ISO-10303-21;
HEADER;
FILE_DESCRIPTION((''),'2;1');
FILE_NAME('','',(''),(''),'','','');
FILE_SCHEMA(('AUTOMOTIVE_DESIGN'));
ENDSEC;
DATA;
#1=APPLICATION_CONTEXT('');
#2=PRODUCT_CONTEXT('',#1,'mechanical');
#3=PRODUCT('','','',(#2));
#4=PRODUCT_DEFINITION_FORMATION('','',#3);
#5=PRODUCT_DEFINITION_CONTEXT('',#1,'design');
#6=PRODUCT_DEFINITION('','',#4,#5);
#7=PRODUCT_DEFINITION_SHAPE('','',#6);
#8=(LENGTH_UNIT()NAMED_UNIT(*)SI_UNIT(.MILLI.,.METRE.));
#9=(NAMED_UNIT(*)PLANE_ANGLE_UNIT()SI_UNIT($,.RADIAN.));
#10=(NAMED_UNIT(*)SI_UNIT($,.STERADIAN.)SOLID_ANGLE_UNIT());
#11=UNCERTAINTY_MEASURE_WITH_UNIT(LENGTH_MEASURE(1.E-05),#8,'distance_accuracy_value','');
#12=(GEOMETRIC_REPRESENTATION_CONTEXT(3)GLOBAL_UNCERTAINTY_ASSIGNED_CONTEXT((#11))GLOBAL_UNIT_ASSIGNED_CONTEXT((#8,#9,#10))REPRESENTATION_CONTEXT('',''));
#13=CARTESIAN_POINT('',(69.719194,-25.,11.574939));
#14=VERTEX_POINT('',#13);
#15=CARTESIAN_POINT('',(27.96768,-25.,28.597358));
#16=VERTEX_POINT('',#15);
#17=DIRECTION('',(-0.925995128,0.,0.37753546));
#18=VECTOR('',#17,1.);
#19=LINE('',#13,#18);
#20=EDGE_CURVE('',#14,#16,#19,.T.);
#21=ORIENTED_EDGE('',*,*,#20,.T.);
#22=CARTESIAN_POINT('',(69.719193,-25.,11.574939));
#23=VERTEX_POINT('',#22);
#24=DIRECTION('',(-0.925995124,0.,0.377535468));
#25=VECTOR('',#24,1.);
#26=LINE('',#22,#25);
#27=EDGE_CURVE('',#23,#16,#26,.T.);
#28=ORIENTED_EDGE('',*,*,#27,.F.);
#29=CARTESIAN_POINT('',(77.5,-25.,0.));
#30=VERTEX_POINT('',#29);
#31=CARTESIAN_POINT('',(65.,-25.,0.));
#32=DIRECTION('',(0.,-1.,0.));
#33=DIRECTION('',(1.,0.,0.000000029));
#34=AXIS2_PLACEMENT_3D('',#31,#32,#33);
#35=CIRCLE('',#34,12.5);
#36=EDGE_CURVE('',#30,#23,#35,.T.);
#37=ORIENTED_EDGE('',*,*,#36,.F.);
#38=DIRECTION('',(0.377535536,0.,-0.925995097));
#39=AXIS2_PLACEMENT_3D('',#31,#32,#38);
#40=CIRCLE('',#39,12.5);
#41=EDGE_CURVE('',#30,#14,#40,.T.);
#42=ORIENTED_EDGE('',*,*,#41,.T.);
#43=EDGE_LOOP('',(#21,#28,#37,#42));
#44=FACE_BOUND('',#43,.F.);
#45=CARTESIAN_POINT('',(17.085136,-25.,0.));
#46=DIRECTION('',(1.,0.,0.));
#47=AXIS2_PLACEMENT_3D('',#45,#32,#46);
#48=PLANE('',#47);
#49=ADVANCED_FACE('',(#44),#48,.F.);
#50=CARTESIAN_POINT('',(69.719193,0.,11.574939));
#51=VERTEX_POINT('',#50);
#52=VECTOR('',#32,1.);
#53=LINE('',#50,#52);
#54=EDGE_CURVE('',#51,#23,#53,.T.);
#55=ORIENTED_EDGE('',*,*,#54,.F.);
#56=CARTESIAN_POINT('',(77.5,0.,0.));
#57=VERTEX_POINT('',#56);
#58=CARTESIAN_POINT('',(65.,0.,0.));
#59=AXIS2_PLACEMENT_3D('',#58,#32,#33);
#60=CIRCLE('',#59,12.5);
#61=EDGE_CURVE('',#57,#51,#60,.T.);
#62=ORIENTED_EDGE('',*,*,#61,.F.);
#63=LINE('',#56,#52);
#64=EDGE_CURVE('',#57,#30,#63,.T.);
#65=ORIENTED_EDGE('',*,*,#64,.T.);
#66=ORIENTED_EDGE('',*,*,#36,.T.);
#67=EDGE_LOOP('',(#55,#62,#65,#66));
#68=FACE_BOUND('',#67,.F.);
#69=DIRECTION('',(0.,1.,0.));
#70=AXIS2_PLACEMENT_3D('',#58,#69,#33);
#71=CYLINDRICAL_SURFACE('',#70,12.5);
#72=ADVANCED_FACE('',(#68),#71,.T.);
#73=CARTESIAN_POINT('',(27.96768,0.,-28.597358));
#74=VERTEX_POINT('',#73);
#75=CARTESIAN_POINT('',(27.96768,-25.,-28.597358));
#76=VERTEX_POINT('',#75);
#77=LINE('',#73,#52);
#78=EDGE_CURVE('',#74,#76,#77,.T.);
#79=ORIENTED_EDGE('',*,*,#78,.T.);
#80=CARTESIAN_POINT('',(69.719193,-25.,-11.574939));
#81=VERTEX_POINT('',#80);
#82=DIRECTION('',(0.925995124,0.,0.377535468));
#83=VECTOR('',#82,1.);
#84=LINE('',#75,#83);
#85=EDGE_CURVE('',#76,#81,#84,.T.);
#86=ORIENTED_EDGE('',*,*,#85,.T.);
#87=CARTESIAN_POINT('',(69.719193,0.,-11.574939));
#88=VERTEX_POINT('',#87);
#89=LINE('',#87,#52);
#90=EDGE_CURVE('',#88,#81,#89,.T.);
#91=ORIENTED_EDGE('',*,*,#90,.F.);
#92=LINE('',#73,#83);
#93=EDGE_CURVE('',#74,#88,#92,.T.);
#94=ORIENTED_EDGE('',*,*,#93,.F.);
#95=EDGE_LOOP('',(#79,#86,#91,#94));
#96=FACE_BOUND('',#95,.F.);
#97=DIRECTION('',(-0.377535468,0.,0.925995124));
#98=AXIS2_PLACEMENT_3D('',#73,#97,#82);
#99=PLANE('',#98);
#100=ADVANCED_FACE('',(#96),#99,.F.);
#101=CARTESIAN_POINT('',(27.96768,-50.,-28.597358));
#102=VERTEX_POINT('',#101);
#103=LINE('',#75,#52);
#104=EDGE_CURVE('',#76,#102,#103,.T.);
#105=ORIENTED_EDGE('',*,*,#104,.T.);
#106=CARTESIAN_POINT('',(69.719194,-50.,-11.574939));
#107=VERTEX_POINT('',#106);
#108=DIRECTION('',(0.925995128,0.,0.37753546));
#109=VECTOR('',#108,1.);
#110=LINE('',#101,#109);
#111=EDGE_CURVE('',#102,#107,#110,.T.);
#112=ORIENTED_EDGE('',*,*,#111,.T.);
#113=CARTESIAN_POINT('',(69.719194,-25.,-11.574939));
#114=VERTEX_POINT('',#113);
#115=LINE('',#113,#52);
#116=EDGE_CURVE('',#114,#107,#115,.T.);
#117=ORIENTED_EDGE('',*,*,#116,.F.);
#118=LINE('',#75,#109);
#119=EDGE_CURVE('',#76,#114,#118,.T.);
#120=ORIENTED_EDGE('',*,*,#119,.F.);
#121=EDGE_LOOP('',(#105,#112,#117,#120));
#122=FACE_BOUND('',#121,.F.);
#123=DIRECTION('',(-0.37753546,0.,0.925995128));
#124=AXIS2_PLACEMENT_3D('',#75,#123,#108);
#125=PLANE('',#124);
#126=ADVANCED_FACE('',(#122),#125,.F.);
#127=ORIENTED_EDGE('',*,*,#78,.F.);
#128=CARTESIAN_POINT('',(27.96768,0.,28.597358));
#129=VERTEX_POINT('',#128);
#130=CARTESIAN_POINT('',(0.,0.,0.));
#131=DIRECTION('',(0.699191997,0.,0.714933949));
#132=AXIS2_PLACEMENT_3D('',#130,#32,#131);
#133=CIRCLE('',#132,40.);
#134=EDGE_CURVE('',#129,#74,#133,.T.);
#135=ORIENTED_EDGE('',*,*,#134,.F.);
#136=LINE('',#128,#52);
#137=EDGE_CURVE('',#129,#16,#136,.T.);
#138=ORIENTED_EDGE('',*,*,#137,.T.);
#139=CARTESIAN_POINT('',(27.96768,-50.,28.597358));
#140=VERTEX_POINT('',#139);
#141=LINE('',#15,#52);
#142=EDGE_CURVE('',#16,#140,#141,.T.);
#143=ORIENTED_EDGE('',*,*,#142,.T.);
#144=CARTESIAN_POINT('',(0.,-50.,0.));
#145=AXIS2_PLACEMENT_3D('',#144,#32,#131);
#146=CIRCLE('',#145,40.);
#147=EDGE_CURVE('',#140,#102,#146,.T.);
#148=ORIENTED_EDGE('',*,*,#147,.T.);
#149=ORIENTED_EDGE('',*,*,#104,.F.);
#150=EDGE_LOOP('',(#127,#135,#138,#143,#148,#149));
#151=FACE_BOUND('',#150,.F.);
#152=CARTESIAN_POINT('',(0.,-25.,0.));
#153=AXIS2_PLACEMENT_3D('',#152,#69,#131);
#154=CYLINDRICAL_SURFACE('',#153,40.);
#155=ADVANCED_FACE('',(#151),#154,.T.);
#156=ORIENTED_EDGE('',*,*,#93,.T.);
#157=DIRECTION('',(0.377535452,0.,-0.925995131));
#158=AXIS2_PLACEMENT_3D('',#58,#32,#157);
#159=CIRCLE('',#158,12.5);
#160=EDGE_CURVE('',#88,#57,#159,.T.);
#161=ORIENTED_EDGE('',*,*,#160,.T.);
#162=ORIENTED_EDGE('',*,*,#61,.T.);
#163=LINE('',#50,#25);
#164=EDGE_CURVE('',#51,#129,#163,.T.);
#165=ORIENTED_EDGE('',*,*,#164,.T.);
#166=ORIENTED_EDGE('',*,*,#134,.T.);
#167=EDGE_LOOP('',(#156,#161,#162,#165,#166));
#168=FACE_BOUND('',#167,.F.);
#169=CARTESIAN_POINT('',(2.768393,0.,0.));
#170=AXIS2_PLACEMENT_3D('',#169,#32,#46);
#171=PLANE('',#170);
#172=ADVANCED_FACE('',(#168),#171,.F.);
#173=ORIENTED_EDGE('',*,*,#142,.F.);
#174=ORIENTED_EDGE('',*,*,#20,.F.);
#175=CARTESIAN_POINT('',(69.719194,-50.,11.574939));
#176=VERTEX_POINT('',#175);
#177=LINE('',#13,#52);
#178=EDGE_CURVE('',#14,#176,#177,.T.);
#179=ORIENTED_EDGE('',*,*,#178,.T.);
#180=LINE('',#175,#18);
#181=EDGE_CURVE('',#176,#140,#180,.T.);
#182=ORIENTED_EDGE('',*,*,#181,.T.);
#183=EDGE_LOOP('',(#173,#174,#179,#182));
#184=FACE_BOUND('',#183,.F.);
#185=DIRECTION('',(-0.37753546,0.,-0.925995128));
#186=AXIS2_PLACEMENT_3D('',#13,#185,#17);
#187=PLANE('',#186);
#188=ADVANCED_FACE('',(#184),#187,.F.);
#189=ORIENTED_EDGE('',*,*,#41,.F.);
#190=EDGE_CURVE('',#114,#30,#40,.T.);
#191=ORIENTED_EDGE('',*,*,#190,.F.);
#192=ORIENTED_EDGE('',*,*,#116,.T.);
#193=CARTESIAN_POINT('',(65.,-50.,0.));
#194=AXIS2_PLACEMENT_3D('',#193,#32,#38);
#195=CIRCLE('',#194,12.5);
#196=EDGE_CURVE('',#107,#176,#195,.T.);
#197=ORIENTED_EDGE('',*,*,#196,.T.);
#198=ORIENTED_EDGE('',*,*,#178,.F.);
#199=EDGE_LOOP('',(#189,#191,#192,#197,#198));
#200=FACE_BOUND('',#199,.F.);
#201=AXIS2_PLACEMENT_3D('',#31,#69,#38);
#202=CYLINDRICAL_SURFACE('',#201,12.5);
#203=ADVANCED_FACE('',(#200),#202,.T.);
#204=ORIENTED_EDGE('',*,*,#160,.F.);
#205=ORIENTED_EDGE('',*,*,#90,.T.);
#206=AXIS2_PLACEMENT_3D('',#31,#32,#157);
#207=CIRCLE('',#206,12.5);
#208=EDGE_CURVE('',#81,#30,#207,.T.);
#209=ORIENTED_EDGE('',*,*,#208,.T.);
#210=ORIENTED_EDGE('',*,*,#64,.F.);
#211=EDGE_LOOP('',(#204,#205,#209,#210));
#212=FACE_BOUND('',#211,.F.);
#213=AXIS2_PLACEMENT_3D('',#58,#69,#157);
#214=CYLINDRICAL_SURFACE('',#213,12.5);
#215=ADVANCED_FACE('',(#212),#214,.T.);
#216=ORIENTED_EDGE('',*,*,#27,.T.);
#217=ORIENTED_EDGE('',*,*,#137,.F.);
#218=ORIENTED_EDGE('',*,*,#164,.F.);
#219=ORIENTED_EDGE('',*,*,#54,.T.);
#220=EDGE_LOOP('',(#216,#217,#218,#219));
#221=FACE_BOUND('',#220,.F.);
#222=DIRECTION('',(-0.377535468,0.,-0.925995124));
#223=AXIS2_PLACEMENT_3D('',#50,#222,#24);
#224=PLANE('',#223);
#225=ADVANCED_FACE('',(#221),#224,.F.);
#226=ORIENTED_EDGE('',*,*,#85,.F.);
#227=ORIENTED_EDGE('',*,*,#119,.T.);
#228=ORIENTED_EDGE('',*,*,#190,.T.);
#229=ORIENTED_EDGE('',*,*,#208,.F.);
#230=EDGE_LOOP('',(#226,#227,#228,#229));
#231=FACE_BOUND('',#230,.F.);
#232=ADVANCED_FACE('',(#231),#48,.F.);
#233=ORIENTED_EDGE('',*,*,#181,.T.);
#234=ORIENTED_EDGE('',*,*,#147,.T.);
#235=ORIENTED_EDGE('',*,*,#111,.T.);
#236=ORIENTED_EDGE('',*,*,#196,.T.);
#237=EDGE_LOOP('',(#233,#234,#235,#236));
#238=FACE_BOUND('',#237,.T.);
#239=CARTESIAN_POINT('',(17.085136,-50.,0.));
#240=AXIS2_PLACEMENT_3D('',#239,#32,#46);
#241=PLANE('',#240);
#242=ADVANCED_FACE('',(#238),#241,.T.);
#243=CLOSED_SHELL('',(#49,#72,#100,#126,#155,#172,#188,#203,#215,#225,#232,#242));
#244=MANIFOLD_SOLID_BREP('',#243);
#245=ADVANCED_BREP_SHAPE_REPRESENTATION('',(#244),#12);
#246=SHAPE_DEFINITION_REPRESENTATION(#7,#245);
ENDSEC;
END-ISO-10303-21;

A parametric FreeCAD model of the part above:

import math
import FreeCAD as App
import Part
import Sketcher
Q = App.Units.Quantity

doc = App.newDocument("Part")
params = doc.addObject("Spreadsheet::Sheet", "Params")
for row, (alias, value) in enumerate([
    ("sketch1_radius", "40 mm"),
    ("sketch1_radius2", "12.5 mm"),
    ("pad1_length", "25 mm"),
    ("sketch2_radius", "40 mm"),
    ("sketch2_radius2", "12.5 mm"),
    ("pad2_length", "25 mm"),
    ("sketch3_diameter", "12 mm"),
    ("pad3_length", "50 mm"),
], start=1):
    params.set(f"A{row}", alias)
    params.set(f"B{row}", "=" + value)
    params.setAlias(f"B{row}", alias)

body = doc.addObject("PartDesign::Body", "Body")

sketch1 = doc.addObject("Sketcher::SketchObject", "Sketch")
body.addObject(sketch1)
sketch1.AttachmentSupport = (doc.XZ_Plane, [""])
sketch1.MapMode = "FlatFace"
sketch1.addGeometry(Part.ArcOfCircle(Part.Circle(App.Vector(0, 0, 0), App.Vector(0, 0, 1), 40), math.radians(46), math.radians(314)), False)
sketch1.addGeometry(Part.LineSegment(App.Vector(28, -29, 0), App.Vector(70, -12, 0)), False)
sketch1.addGeometry(Part.ArcOfCircle(Part.Circle(App.Vector(65, 0, 0), App.Vector(0, 0, 1), 13), math.radians(-68), math.radians(0)), False)
sketch1.addGeometry(Part.ArcOfCircle(Part.Circle(App.Vector(65, 0, 0), App.Vector(0, 0, 1), 13), math.radians(0), math.radians(68)), False)
sketch1.addGeometry(Part.LineSegment(App.Vector(70, 12, 0), App.Vector(28, 29, 0)), False)
sketch1.addConstraint(Sketcher.Constraint("Coincident", 0, 2, 1, 1))
sketch1.addConstraint(Sketcher.Constraint("Tangent", 1, 2, 2, 1))
sketch1.addConstraint(Sketcher.Constraint("Tangent", 2, 2, 3, 1))
sketch1.addConstraint(Sketcher.Constraint("Tangent", 3, 2, 4, 1))
sketch1.addConstraint(Sketcher.Constraint("Coincident", 4, 2, 0, 1))
sketch1.addConstraint(Sketcher.Constraint("Coincident", 0, 3, -1, 1))
sketch1.addConstraint(Sketcher.Constraint("Equal", 2, 3))
sketch1.addConstraint(Sketcher.Constraint("Symmetric", 1, 2, 3, 2, -1))
sketch1.addConstraint(Sketcher.Constraint("PointOnObject", 2, 2, -1))
sketch1.addConstraint(Sketcher.Constraint("Radius", 0, Q("40 mm")))
sketch1.addConstraint(Sketcher.Constraint("Radius", 2, Q("12.5 mm")))
sketch1.addConstraint(Sketcher.Constraint("DistanceX", -1, 1, 2, 3, Q("65 mm")))
sketch1.addConstraint(Sketcher.Constraint("DistanceX", -1, 1, 0, 2, Q("27.96768 mm")))
sketch1.setExpression("Constraints[9]", "Params.sketch1_radius")
sketch1.setExpression("Constraints[10]", "Params.sketch1_radius2")
pad1 = doc.addObject("PartDesign::Pad", "Pad")
body.addObject(pad1)
pad1.Profile = sketch1
pad1.setExpression("Length", "Params.pad1_length")

sketch2 = doc.addObject("Sketcher::SketchObject", "Sketch001")
body.addObject(sketch2)
sketch2.AttachmentSupport = (doc.XZ_Plane, [""])
sketch2.MapMode = "FlatFace"
sketch2.AttachmentOffset = App.Placement(App.Vector(0, 0, 25), App.Rotation())
sketch2.addGeometry(Part.ArcOfCircle(Part.Circle(App.Vector(0, 0, 0), App.Vector(0, 0, 1), 40), math.radians(46), math.radians(314)), False)
sketch2.addGeometry(Part.LineSegment(App.Vector(28, -29, 0), App.Vector(70, -12, 0)), False)
sketch2.addGeometry(Part.ArcOfCircle(Part.Circle(App.Vector(65, 0, 0), App.Vector(0, 0, 1), 13), math.radians(-68), math.radians(68)), False)
sketch2.addGeometry(Part.LineSegment(App.Vector(70, 12, 0), App.Vector(28, 29, 0)), False)
sketch2.addConstraint(Sketcher.Constraint("Coincident", 0, 2, 1, 1))
sketch2.addConstraint(Sketcher.Constraint("Tangent", 1, 2, 2, 1))
sketch2.addConstraint(Sketcher.Constraint("Tangent", 2, 2, 3, 1))
sketch2.addConstraint(Sketcher.Constraint("Coincident", 3, 2, 0, 1))
sketch2.addConstraint(Sketcher.Constraint("Coincident", 0, 3, -1, 1))
sketch2.addConstraint(Sketcher.Constraint("Symmetric", 1, 2, 2, 2, -1))
sketch2.addConstraint(Sketcher.Constraint("Radius", 0, Q("40 mm")))
sketch2.addConstraint(Sketcher.Constraint("Radius", 2, Q("12.5 mm")))
sketch2.addConstraint(Sketcher.Constraint("DistanceX", -1, 1, 2, 3, Q("65 mm")))
sketch2.addConstraint(Sketcher.Constraint("DistanceX", -1, 1, 0, 2, Q("27.96768 mm")))
sketch2.setExpression("Constraints[6]", "Params.sketch2_radius")
sketch2.setExpression("Constraints[7]", "Params.sketch2_radius2")
pad2 = doc.addObject("PartDesign::Pad", "Pad001")
body.addObject(pad2)
pad2.Profile = sketch2
pad2.setExpression("Length", "Params.pad2_length")

sketch3 = doc.addObject("Sketcher::SketchObject", "Sketch002")
body.addObject(sketch3)
sketch3.AttachmentSupport = (doc.XZ_Plane, [""])
sketch3.MapMode = "FlatFace"
sketch3.addGeometry(Part.Circle(App.Vector(0, 0, 0), App.Vector(0, 0, 1), 6), False)
sketch3.addGeometry(Part.Circle(App.Vector(65, 0, 0), App.Vector(0, 0, 1), 6), False)
sketch3.addConstraint(Sketcher.Constraint("Coincident", 0, 3, -1, 1))
sketch3.addConstraint(Sketcher.Constraint("Equal", 0, 1))
sketch3.addConstraint(Sketcher.Constraint("PointOnObject", 1, 3, -1))
sketch3.addConstraint(Sketcher.Constraint("Diameter", 0, Q("12 mm")))
sketch3.addConstraint(Sketcher.Constraint("DistanceX", -1, 1, 1, 3, Q("64.783454 mm")))
sketch3.setExpression("Constraints[3]", "Params.sketch3_diameter")
pad3 = doc.addObject("PartDesign::Pad", "Pad002")
body.addObject(pad3)
pad3.Profile = sketch3
pad3.setExpression("Length", "Params.pad3_length")

doc.recompute()
